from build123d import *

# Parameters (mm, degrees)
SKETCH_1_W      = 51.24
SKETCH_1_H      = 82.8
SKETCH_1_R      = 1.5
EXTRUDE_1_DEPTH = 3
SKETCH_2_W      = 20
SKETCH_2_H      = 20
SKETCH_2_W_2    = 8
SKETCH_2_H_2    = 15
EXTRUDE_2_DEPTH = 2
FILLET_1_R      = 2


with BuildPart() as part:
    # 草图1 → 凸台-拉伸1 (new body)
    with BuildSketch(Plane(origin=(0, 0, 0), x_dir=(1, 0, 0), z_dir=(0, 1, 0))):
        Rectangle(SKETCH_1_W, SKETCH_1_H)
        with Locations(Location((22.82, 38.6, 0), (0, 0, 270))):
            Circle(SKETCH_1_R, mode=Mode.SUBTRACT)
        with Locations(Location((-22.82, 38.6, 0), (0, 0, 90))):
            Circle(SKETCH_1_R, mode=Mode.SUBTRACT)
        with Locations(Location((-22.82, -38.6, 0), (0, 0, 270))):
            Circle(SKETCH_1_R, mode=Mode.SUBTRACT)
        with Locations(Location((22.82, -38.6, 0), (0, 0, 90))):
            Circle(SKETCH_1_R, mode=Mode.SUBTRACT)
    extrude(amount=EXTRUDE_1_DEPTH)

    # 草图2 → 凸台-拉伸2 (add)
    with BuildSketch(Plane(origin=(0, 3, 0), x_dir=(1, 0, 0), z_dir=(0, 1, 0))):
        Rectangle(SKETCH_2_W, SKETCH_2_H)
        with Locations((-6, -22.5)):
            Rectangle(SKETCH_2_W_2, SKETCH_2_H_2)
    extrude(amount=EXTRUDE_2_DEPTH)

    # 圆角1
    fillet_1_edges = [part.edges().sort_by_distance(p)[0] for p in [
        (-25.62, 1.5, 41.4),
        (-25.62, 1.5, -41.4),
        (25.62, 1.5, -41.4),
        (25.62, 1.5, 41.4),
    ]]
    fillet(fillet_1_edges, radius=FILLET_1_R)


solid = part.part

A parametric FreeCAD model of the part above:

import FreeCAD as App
import Part
import Sketcher

V = App.Vector
Q = App.Units.Quantity


def edges_at(feature, points):
    """Names of the edges that pass closest to the given points."""
    edges = feature.Shape.Edges
    near = lambda p: min(range(len(edges)), key=lambda i: edges[i].distToShape(Part.Vertex(*p))[0])
    return sorted({f"Edge{near(p) + 1}" for p in points})


def add_polygon(sketch, points):
    """Adds a closed chain of lines whose ends are joined by coincident constraints."""
    first, n = sketch.GeometryCount, len(points)
    for a, b in zip(points, points[1:] + points[:1]):
        sketch.addGeometry(Part.LineSegment(App.Vector(*a, 0), App.Vector(*b, 0)), False)
    for i in range(n):
        sketch.addConstraint(Sketcher.Constraint("Coincident", first + i, 2, first + (i + 1) % n, 1))

doc = App.newDocument("Part")
body = doc.addObject("PartDesign::Body", "Body")

sketch1 = body.newObject("Sketcher::SketchObject", "Sketch")
sketch1.AttachmentSupport = (doc.getObject("XZ_Plane"), [""])
sketch1.MapMode = "FlatFace"
add_polygon(sketch1, [(-25.6, -41.4), (-25.6, 41.4), (25.6, 41.4), (25.6, -41.4)])
sketch1.addGeometry(Part.Circle(V(-22.8, 38.6, 0), V(0, 0, 1), 1.5), False)
sketch1.addGeometry(Part.Circle(V(22.8, 38.6, 0), V(0, 0, 1), 1.5), False)
sketch1.addGeometry(Part.Circle(V(-22.8, -38.6, 0), V(0, 0, 1), 1.5), False)
sketch1.addGeometry(Part.Circle(V(22.8, -38.6, 0), V(0, 0, 1), 1.5), False)
sketch1.addConstraint(Sketcher.Constraint("Vertical", 0))
sketch1.addConstraint(Sketcher.Constraint("Horizontal", 1))
sketch1.addConstraint(Sketcher.Constraint("Vertical", 2))
sketch1.addConstraint(Sketcher.Constraint("Horizontal", 3))
sketch1.addConstraint(Sketcher.Constraint("Equal", 4, 5))
sketch1.addConstraint(Sketcher.Constraint("Equal", 5, 6))
sketch1.addConstraint(Sketcher.Constraint("Equal", 6, 7))
sketch1.addConstraint(Sketcher.Constraint("Symmetric", 5, 3, 6, 3, -1, 1))
sketch1.addConstraint(Sketcher.Constraint("Symmetric", 4, 3, 7, 3, -1, 1))
sketch1.addConstraint(Sketcher.Constraint("Symmetric", 0, 2, 2, 2, -1, 1))
sketch1.addConstraint(Sketcher.Constraint("Symmetric", 4, 3, 5, 3, -2))
sketch1.addConstraint(Sketcher.Constraint("Diameter", 4, Q("3 mm")))
sketch1.addConstraint(Sketcher.Constraint("DistanceY", 0, 1, 0, 2, Q("82.8 mm")))
sketch1.addConstraint(Sketcher.Constraint("DistanceY", 6, 3, 0, 2, Q("80 mm")))
sketch1.addConstraint(Sketcher.Constraint("DistanceX", 1, 1, 1, 2, Q("51.24 mm")))
sketch1.addConstraint(Sketcher.Constraint("DistanceX", 0, 2, 4, 3, Q("2.8 mm")))
pad1 = body.newObject("PartDesign::Pad", "Pad")
pad1.Profile = sketch1
pad1.Length = 3
pad1.Reversed = True

sketch2 = body.newObject("Sketcher::SketchObject", "Sketch001")
sketch2.AttachmentSupport = (doc.getObject("XZ_Plane"), [""])
sketch2.MapMode = "FlatFace"
sketch2.AttachmentOffset = App.Placement(V(0, 0, -3), App.Rotation())
add_polygon(sketch2, [(-10, -10), (-10, 10), (10, 10), (10, -10)])
add_polygon(sketch2, [(-10, 15), (-10, 30), (-2, 30), (-2, 15)])
sketch2.addConstraint(Sketcher.Constraint("Vertical", 0))
sketch2.addConstraint(Sketcher.Constraint("Horizontal", 1))
sketch2.addConstraint(Sketcher.Constraint("Vertical", 2))
sketch2.addConstraint(Sketcher.Constraint("Horizontal", 3))
sketch2.addConstraint(Sketcher.Constraint("Vertical", 4))
sketch2.addConstraint(Sketcher.Constraint("Horizontal", 5))
sketch2.addConstraint(Sketcher.Constraint("Vertical", 6))
sketch2.addConstraint(Sketcher.Constraint("Horizontal", 7))
sketch2.addConstraint(Sketcher.Constraint("Symmetric", 0, 2, 2, 2, -1, 1))
sketch2.addConstraint(Sketcher.Constraint("Vertical", 3, 2, 4, 2))
sketch2.addConstraint(Sketcher.Constraint("Equal", 3, 0))
sketch2.addConstraint(Sketcher.Constraint("DistanceX", 1, 1, 1, 2, Q("20 mm")))
sketch2.addConstraint(Sketcher.Constraint("DistanceX", 5, 1, 5, 2, Q("8 mm")))
sketch2.addConstraint(Sketcher.Constraint("DistanceY", 4, 1, 4, 2, Q("15 mm")))
sketch2.addConstraint(Sketcher.Constraint("DistanceY", -1, 1, 4, 2, Q("30 mm")))
pad2 = body.newObject("PartDesign::Pad", "Pad001")
pad2.Profile = sketch2
pad2.Length = 2
pad2.Reversed = True
doc.recompute()

fillet = body.newObject("PartDesign::Fillet", "Fillet")
fillet.Base = (pad2, edges_at(pad2, [
    (-25.62, 1.5, 41.4),
    (-25.62, 1.5, -41.4),
    (25.62, 1.5, -41.4),
    (25.62, 1.5, 41.4),
]))
fillet.Radius = 2

doc.recompute()
